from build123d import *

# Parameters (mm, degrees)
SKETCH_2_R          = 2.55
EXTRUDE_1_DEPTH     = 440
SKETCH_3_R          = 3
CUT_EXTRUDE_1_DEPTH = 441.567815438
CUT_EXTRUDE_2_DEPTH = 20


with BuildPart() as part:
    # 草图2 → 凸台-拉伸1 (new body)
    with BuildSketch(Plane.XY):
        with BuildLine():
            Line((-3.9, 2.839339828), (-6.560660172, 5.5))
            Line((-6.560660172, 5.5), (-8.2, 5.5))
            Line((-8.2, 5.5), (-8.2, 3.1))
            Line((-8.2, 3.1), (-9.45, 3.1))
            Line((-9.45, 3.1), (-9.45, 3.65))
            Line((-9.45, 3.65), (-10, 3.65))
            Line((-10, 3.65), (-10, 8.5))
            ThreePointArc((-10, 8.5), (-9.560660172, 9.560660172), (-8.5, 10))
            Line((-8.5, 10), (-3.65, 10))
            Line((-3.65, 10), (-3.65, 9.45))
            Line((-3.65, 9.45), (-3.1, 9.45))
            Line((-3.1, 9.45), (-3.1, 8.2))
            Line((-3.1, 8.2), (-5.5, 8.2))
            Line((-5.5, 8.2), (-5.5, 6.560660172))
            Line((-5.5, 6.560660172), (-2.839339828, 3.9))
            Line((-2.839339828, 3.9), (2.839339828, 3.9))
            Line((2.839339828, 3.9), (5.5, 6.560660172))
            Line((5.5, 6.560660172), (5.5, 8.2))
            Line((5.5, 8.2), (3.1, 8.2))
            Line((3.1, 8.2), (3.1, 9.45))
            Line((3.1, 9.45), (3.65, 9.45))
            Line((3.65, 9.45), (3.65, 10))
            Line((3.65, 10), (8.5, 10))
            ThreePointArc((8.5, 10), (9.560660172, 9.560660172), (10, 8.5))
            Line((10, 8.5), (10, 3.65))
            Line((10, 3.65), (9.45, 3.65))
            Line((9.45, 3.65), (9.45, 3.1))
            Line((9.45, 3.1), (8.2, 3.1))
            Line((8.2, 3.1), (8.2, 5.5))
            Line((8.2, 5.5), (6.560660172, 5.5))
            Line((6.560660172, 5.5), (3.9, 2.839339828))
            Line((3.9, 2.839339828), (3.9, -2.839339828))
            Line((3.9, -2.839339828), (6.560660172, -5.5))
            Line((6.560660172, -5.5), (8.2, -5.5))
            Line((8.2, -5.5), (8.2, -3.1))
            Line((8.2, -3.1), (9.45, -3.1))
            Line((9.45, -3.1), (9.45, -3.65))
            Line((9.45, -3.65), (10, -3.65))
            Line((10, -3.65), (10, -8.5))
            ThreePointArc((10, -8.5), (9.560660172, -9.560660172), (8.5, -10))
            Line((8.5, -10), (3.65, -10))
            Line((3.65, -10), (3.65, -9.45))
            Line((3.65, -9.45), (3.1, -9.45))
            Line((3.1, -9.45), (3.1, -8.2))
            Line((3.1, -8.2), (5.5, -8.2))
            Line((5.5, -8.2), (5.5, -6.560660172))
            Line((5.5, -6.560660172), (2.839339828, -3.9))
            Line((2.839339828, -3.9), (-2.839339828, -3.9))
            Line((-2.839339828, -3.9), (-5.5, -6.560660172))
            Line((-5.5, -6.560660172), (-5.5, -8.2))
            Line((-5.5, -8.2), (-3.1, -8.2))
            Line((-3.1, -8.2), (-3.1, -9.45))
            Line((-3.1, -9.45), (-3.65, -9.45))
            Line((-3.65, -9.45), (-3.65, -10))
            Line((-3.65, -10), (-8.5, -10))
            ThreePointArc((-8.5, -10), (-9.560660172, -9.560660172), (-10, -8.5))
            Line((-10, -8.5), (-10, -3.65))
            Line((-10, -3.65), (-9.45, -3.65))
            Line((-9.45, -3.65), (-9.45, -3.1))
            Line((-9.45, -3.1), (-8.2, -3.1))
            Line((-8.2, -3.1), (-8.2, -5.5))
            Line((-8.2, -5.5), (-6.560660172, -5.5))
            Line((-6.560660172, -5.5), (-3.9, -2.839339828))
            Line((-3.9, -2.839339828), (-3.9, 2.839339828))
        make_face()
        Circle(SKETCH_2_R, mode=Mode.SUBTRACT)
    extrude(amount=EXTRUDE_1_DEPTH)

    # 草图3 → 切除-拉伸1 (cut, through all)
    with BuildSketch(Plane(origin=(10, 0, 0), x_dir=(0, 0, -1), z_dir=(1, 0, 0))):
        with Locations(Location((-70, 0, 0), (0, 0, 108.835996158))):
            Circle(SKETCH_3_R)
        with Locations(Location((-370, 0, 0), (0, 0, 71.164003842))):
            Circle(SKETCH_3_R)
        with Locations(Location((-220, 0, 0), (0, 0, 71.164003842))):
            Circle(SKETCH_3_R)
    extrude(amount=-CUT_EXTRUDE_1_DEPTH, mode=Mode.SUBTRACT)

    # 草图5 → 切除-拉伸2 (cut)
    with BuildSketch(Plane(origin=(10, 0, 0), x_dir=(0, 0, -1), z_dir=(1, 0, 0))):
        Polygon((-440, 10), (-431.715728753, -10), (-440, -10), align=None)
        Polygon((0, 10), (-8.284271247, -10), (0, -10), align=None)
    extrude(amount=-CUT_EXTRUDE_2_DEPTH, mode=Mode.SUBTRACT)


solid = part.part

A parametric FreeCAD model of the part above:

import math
import FreeCAD as App
import Part
import Sketcher

V = App.Vector
Q = App.Units.Quantity


def add_polygon(sketch, points):
    """Adds a closed chain of lines whose ends are joined by coincident constraints."""
    first, n = sketch.GeometryCount, len(points)
    for a, b in zip(points, points[1:] + points[:1]):
        sketch.addGeometry(Part.LineSegment(App.Vector(*a, 0), App.Vector(*b, 0)), False)
    for i in range(n):
        sketch.addConstraint(Sketcher.Constraint("Coincident", first + i, 2, first + (i + 1) % n, 1))

doc = App.newDocument("Part")
params = doc.addObject("Spreadsheet::Sheet", "Params")
for row, (alias, value) in enumerate([
    ("sketch1_diameter", "5.1 mm"),
    ("sketch1_radius", "1.5 mm"),
    ("sketch1_width", "2.4 mm"),
    ("sketch1_width2", "1.25 mm"),
    ("sketch1_width3", "0.55 mm"),
    ("pad1_length", "440 mm"),
    ("sketch2_diameter", "6 mm"),
    ("sketch3_width", "20 mm"),
    ("pocket2_length", "20 mm"),
], start=1):
    params.set(f"A{row}", alias)
    params.set(f"B{row}", "=" + value)
    params.setAlias(f"B{row}", alias)

body = doc.addObject("PartDesign::Body", "Body")

sketch1 = body.newObject("Sketcher::SketchObject", "Sketch")
sketch1.AttachmentSupport = (doc.getObject("XY_Plane"), [""])
sketch1.MapMode = "FlatFace"
sketch1.addGeometry([
    Part.LineSegment(V(-6.6, 5.5, 0), V(-3.9, 2.8, 0)),
    Part.LineSegment(V(-3.9, 2.8, 0), V(-3.9, -2.8, 0)),
    Part.LineSegment(V(-3.9, -2.8, 0), V(-6.6, -5.5, 0)),
    Part.LineSegment(V(-6.6, -5.5, 0), V(-8.2, -5.5, 0)),
    Part.LineSegment(V(-8.2, -5.5, 0), V(-8.2, -3.1, 0)),
    Part.LineSegment(V(-8.2, -3.1, 0), V(-9.4, -3.1, 0)),
    Part.LineSegment(V(-9.4, -3.1, 0), V(-9.4, -3.6, 0)),
    Part.LineSegment(V(-9.4, -3.6, 0), V(-10, -3.6, 0)),
    Part.LineSegment(V(-10, -3.6, 0), V(-10, -8.5, 0)),
    Part.ArcOfCircle(Part.Circle(V(-8.5, -8.5, 0), V(0, 0, 1), 1.5), math.radians(180), math.radians(270)),
    Part.LineSegment(V(-8.5, -10, 0), V(-3.6, -10, 0)),
    Part.LineSegment(V(-3.6, -10, 0), V(-3.6, -9.4, 0)),
    Part.LineSegment(V(-3.6, -9.4, 0), V(-3.1, -9.4, 0)),
    Part.LineSegment(V(-3.1, -9.4, 0), V(-3.1, -8.2, 0)),
    Part.LineSegment(V(-3.1, -8.2, 0), V(-5.5, -8.2, 0)),
    Part.LineSegment(V(-5.5, -8.2, 0), V(-5.5, -6.6, 0)),
    Part.LineSegment(V(-5.5, -6.6, 0), V(-2.8, -3.9, 0)),
    Part.LineSegment(V(-2.8, -3.9, 0), V(2.8, -3.9, 0)),
    Part.LineSegment(V(2.8, -3.9, 0), V(5.5, -6.6, 0)),
    Part.LineSegment(V(5.5, -6.6, 0), V(5.5, -8.2, 0)),
    Part.LineSegment(V(5.5, -8.2, 0), V(3.1, -8.2, 0)),
    Part.LineSegment(V(3.1, -8.2, 0), V(3.1, -9.4, 0)),
    Part.LineSegment(V(3.1, -9.4, 0), V(3.6, -9.4, 0)),
    Part.LineSegment(V(3.6, -9.4, 0), V(3.6, -10, 0)),
    Part.LineSegment(V(3.6, -10, 0), V(8.5, -10, 0)),
    Part.ArcOfCircle(Part.Circle(V(8.5, -8.5, 0), V(0, 0, 1), 1.5), math.radians(-90), math.radians(0)),
    Part.LineSegment(V(10, -8.5, 0), V(10, -3.6, 0)),
    Part.LineSegment(V(10, -3.6, 0), V(9.4, -3.6, 0)),
    Part.LineSegment(V(9.4, -3.6, 0), V(9.4, -3.1, 0)),
    Part.LineSegment(V(9.4, -3.1, 0), V(8.2, -3.1, 0)),
    Part.LineSegment(V(8.2, -3.1, 0), V(8.2, -5.5, 0)),
    Part.LineSegment(V(8.2, -5.5, 0), V(6.6, -5.5, 0)),
    Part.LineSegment(V(6.6, -5.5, 0), V(3.9, -2.8, 0)),
    Part.LineSegment(V(3.9, -2.8, 0), V(3.9, 2.8, 0)),
    Part.LineSegment(V(3.9, 2.8, 0), V(6.6, 5.5, 0)),
    Part.LineSegment(V(6.6, 5.5, 0), V(8.2, 5.5, 0)),
    Part.LineSegment(V(8.2, 5.5, 0), V(8.2, 3.1, 0)),
    Part.LineSegment(V(8.2, 3.1, 0), V(9.4, 3.1, 0)),
    Part.LineSegment(V(9.4, 3.1, 0), V(9.4, 3.6, 0)),
    Part.LineSegment(V(9.4, 3.6, 0), V(10, 3.6, 0)),
    Part.LineSegment(V(10, 3.6, 0), V(10, 8.5, 0)),
    Part.ArcOfCircle(Part.Circle(V(8.5, 8.5, 0), V(0, 0, 1), 1.5), math.radians(0), math.radians(90)),
    Part.LineSegment(V(8.5, 10, 0), V(3.6, 10, 0)),
    Part.LineSegment(V(3.6, 10, 0), V(3.6, 9.4, 0)),
    Part.LineSegment(V(3.6, 9.4, 0), V(3.1, 9.4, 0)),
    Part.LineSegment(V(3.1, 9.4, 0), V(3.1, 8.2, 0)),
    Part.LineSegment(V(3.1, 8.2, 0), V(5.5, 8.2, 0)),
    Part.LineSegment(V(5.5, 8.2, 0), V(5.5, 6.6, 0)),
    Part.LineSegment(V(5.5, 6.6, 0), V(2.8, 3.9, 0)),
    Part.LineSegment(V(2.8, 3.9, 0), V(-2.8, 3.9, 0)),
    Part.LineSegment(V(-2.8, 3.9, 0), V(-5.5, 6.6, 0)),
    Part.LineSegment(V(-5.5, 6.6, 0), V(-5.5, 8.2, 0)),
    Part.LineSegment(V(-5.5, 8.2, 0), V(-3.1, 8.2, 0)),
    Part.LineSegment(V(-3.1, 8.2, 0), V(-3.1, 9.4, 0)),
    Part.LineSegment(V(-3.1, 9.4, 0), V(-3.6, 9.4, 0)),
    Part.LineSegment(V(-3.6, 9.4, 0), V(-3.6, 10, 0)),
    Part.LineSegment(V(-3.6, 10, 0), V(-8.5, 10, 0)),
    Part.ArcOfCircle(Part.Circle(V(-8.5, 8.5, 0), V(0, 0, 1), 1.5), math.radians(90), math.radians(180)),
    Part.LineSegment(V(-10, 8.5, 0), V(-10, 3.6, 0)),
    Part.LineSegment(V(-10, 3.6, 0), V(-9.4, 3.6, 0)),
    Part.LineSegment(V(-9.4, 3.6, 0), V(-9.4, 3.1, 0)),
    Part.LineSegment(V(-9.4, 3.1, 0), V(-8.2, 3.1, 0)),
    Part.LineSegment(V(-8.2, 3.1, 0), V(-8.2, 5.5, 0)),
    Part.LineSegment(V(-8.2, 5.5, 0), V(-6.6, 5.5, 0)),
    Part.Circle(V(0, 0, 0), V(0, 0, 1), 2.5),
], False)
sketch1.addConstraint([
    Sketcher.Constraint("Coincident", 0, 2, 1, 1),
    Sketcher.Constraint("Coincident", 1, 2, 2, 1),
    Sketcher.Constraint("Coincident", 2, 2, 3, 1),
    Sketcher.Constraint("Coincident", 3, 2, 4, 1),
    Sketcher.Constraint("Coincident", 4, 2, 5, 1),
    Sketcher.Constraint("Coincident", 5, 2, 6, 1),
    Sketcher.Constraint("Coincident", 6, 2, 7, 1),
    Sketcher.Constraint("Coincident", 7, 2, 8, 1),
    Sketcher.Constraint("Tangent", 8, 2, 9, 1),
    Sketcher.Constraint("Tangent", 9, 2, 10, 1),
    Sketcher.Constraint("Coincident", 10, 2, 11, 1),
    Sketcher.Constraint("Coincident", 11, 2, 12, 1),
    Sketcher.Constraint("Coincident", 12, 2, 13, 1),
    Sketcher.Constraint("Coincident", 13, 2, 14, 1),
    Sketcher.Constraint("Coincident", 14, 2, 15, 1),
    Sketcher.Constraint("Coincident", 15, 2, 16, 1),
    Sketcher.Constraint("Coincident", 16, 2, 17, 1),
    Sketcher.Constraint("Coincident", 17, 2, 18, 1),
    Sketcher.Constraint("Coincident", 18, 2, 19, 1),
    Sketcher.Constraint("Coincident", 19, 2, 20, 1),
    Sketcher.Constraint("Coincident", 20, 2, 21, 1),
    Sketcher.Constraint("Coincident", 21, 2, 22, 1),
    Sketcher.Constraint("Coincident", 22, 2, 23, 1),
    Sketcher.Constraint("Coincident", 23, 2, 24, 1),
    Sketcher.Constraint("Tangent", 24, 2, 25, 1),
    Sketcher.Constraint("Tangent", 25, 2, 26, 1),
    Sketcher.Constraint("Coincident", 26, 2, 27, 1),
    Sketcher.Constraint("Coincident", 27, 2, 28, 1),
    Sketcher.Constraint("Coincident", 28, 2, 29, 1),
    Sketcher.Constraint("Coincident", 29, 2, 30, 1),
    Sketcher.Constraint("Coincident", 30, 2, 31, 1),
    Sketcher.Constraint("Coincident", 31, 2, 32, 1),
    Sketcher.Constraint("Coincident", 32, 2, 33, 1),
    Sketcher.Constraint("Coincident", 33, 2, 34, 1),
    Sketcher.Constraint("Coincident", 34, 2, 35, 1),
    Sketcher.Constraint("Coincident", 35, 2, 36, 1),
    Sketcher.Constraint("Coincident", 36, 2, 37, 1),
    Sketcher.Constraint("Coincident", 37, 2, 38, 1),
    Sketcher.Constraint("Coincident", 38, 2, 39, 1),
    Sketcher.Constraint("Coincident", 39, 2, 40, 1),
    Sketcher.Constraint("Tangent", 40, 2, 41, 1),
    Sketcher.Constraint("Tangent", 41, 2, 42, 1),
    Sketcher.Constraint("Coincident", 42, 2, 43, 1),
    Sketcher.Constraint("Coincident", 43, 2, 44, 1),
    Sketcher.Constraint("Coincident", 44, 2, 45, 1),
    Sketcher.Constraint("Coincident", 45, 2, 46, 1),
    Sketcher.Constraint("Coincident", 46, 2, 47, 1),
    Sketcher.Constraint("Coincident", 47, 2, 48, 1),
    Sketcher.Constraint("Coincident", 48, 2, 49, 1),
    Sketcher.Constraint("Coincident", 49, 2, 50, 1),
    Sketcher.Constraint("Coincident", 50, 2, 51, 1),
    Sketcher.Constraint("Coincident", 51, 2, 52, 1),
    Sketcher.Constraint("Coincident", 52, 2, 53, 1),
    Sketcher.Constraint("Coincident", 53, 2, 54, 1),
    Sketcher.Constraint("Coincident", 54, 2, 55, 1),
    Sketcher.Constraint("Coincident", 55, 2, 56, 1),
    Sketcher.Constraint("Tangent", 56, 2, 57, 1),
    Sketcher.Constraint("Tangent", 57, 2, 58, 1),
    Sketcher.Constraint("Coincident", 58, 2, 59, 1),
    Sketcher.Constraint("Coincident", 59, 2, 60, 1),
    Sketcher.Constraint("Coincident", 60, 2, 61, 1),
    Sketcher.Constraint("Coincident", 61, 2, 62, 1),
    Sketcher.Constraint("Coincident", 62, 2, 63, 1),
    Sketcher.Constraint("Coincident", 63, 2, 0, 1),
    Sketcher.Constraint("Vertical", 1),
    Sketcher.Constraint("Horizontal", 3),
    Sketcher.Constraint("Vertical", 4),
    Sketcher.Constraint("Horizontal", 5),
    Sketcher.Constraint("Vertical", 6),
    Sketcher.Constraint("Horizontal", 7),
    Sketcher.Constraint("Vertical", 8),
    Sketcher.Constraint("Horizontal", 10),
    Sketcher.Constraint("Vertical", 11),
    Sketcher.Constraint("Horizontal", 12),
    Sketcher.Constraint("Vertical", 13),
    Sketcher.Constraint("Horizontal", 14),
    Sketcher.Constraint("Vertical", 15),
    Sketcher.Constraint("Horizontal", 17),
    Sketcher.Constraint("Vertical", 19),
    Sketcher.Constraint("Horizontal", 20),
    Sketcher.Constraint("Vertical", 21),
    Sketcher.Constraint("Horizontal", 22),
    Sketcher.Constraint("Vertical", 23),
    Sketcher.Constraint("Horizontal", 24),
    Sketcher.Constraint("Vertical", 26),
    Sketcher.Constraint("Horizontal", 27),
    Sketcher.Constraint("Vertical", 28),
    Sketcher.Constraint("Horizontal", 29),
    Sketcher.Constraint("Vertical", 30),
    Sketcher.Constraint("Horizontal", 31),
    Sketcher.Constraint("Vertical", 33),
    Sketcher.Constraint("Horizontal", 35),
    Sketcher.Constraint("Vertical", 36),
    Sketcher.Constraint("Horizontal", 37),
    Sketcher.Constraint("Vertical", 38),
    Sketcher.Constraint("Horizontal", 39),
    Sketcher.Constraint("Vertical", 40),
    Sketcher.Constraint("Horizontal", 42),
    Sketcher.Constraint("Vertical", 43),
    Sketcher.Constraint("Horizontal", 44),
    Sketcher.Constraint("Vertical", 45),
    Sketcher.Constraint("Horizontal", 46),
    Sketcher.Constraint("Vertical", 47),
    Sketcher.Constraint("Horizontal", 49),
    Sketcher.Constraint("Vertical", 51),
    Sketcher.Constraint("Horizontal", 52),
    Sketcher.Constraint("Vertical", 53),
    Sketcher.Constraint("Horizontal", 54),
    Sketcher.Constraint("Vertical", 55),
    Sketcher.Constraint("Horizontal", 56),
    Sketcher.Constraint("Vertical", 58),
    Sketcher.Constraint("Horizontal", 59),
    Sketcher.Constraint("Vertical", 60),
    Sketcher.Constraint("Horizontal", 61),
    Sketcher.Constraint("Vertical", 62),
    Sketcher.Constraint("Horizontal", 63),
    Sketcher.Constraint("Coincident", 64, 3, -1, 1),
    Sketcher.Constraint("Equal", 9, 25),
    Sketcher.Constraint("Equal", 25, 41),
    Sketcher.Constraint("Equal", 41, 57),
    Sketcher.Constraint("Symmetric", 9, 3, 41, 3, -1, 1),
    Sketcher.Constraint("Symmetric", 25, 3, 57, 3, -1, 1),
    Sketcher.Constraint("Symmetric", 0, 2, 32, 2, -1, 1),
    Sketcher.Constraint("Symmetric", 2, 2, 34, 2, -1, 1),
    Sketcher.Constraint("Symmetric", 4, 2, 36, 2, -1, 1),
    Sketcher.Constraint("Symmetric", 6, 2, 38, 2, -1, 1),
    Sketcher.Constraint("Symmetric", 11, 2, 43, 2, -1, 1),
    Sketcher.Constraint("Symmetric", 13, 2, 45, 2, -1, 1),
    Sketcher.Constraint("Symmetric", 15, 2, 47, 2, -1, 1),
    Sketcher.Constraint("Symmetric", 16, 2, 48, 2, -1, 1),
    Sketcher.Constraint("Symmetric", 18, 2, 50, 2, -1, 1),
    Sketcher.Constraint("Symmetric", 20, 2, 52, 2, -1, 1),
    Sketcher.Constraint("Symmetric", 22, 2, 54, 2, -1, 1),
    Sketcher.Constraint("Symmetric", 27, 2, 59, 2, -1, 1),
    Sketcher.Constraint("Symmetric", 29, 2, 61, 2, -1, 1),
    Sketcher.Constraint("Symmetric", 31, 2, 63, 2, -1, 1),
    Sketcher.Constraint("Symmetric", 9, 3, 25, 3, -2),
    Sketcher.Constraint("Symmetric", 15, 2, 18, 2, -2),
    Sketcher.Constraint("Symmetric", 13, 2, 20, 2, -2),
    Sketcher.Constraint("Symmetric", 11, 2, 22, 2, -2),
    Sketcher.Constraint("Symmetric", 6, 2, 27, 2, -2),
    Sketcher.Constraint("Symmetric", 4, 2, 29, 2, -2),
    Sketcher.Constraint("Symmetric", 2, 2, 31, 2, -2),
    Sketcher.Constraint("Perpendicular", 0, 2),
    Sketcher.Constraint("Parallel", 2, 16),
    Sketcher.Constraint("Perpendicular", 16, 18),
    Sketcher.Constraint("Perpendicular", 32, 34),
    Sketcher.Constraint("Perpendicular", 48, 50),
    Sketcher.Constraint("Horizontal", 1, 2, 32, 2),
    Sketcher.Constraint("Equal", 7, 12),
    Sketcher.Constraint("Equal", 49, 1),
    Sketcher.Constraint("Equal", 52, 4),
    Sketcher.Constraint("Equal", 59, 6),
    Sketcher.Constraint("Equal", 56, 8),
    Sketcher.Constraint("Equal", 6, 11),
    Sketcher.Constraint("Equal", 61, 13),
    Sketcher.Constraint("Equal", 63, 15),
    Sketcher.Constraint("Equal", 2, 16),
    Sketcher.Constraint("Diameter", 64, 5.1),
    Sketcher.Constraint("Radius", 9, 1.5),
    Sketcher.Constraint("DistanceX", 14, 2, 14, 1, 2.4),
    Sketcher.Constraint("DistanceX", 7, 2, -1, 1, 10.0),
    Sketcher.Constraint("DistanceX", 5, 2, 5, 1, 1.25),
    Sketcher.Constraint("DistanceX", 7, 2, 7, 1, 0.55),
    Sketcher.Constraint("DistanceX", 10, 1, 10, 2, 4.85),
    Sketcher.Constraint("DistanceX", 0, 2, -1, 1, 3.9),
    Sketcher.Constraint("DistanceX", 3, 2, 3, 1, 1.63934),
])
sketch1.setExpression("Constraints[158]", "Params.sketch1_diameter")
sketch1.setExpression("Constraints[159]", "Params.sketch1_radius")
sketch1.setExpression("Constraints[160]", "Params.sketch1_width")
sketch1.setExpression("Constraints[162]", "Params.sketch1_width2")
sketch1.setExpression("Constraints[163]", "Params.sketch1_width3")
pad1 = body.newObject("PartDesign::Pad", "Pad")
pad1.Profile = sketch1
pad1.setExpression("Length", "Params.pad1_length")

sketch2 = body.newObject("Sketcher::SketchObject", "Sketch001")
sketch2.AttachmentSupport = (doc.getObject("YZ_Plane"), [""])
sketch2.MapMode = "FlatFace"
sketch2.AttachmentOffset = App.Placement(V(0, 0, 10), App.Rotation())
sketch2.addGeometry([
    Part.Circle(V(0, 70, 0), V(0, 0, 1), 3),
    Part.Circle(V(0, 370, 0), V(0, 0, 1), 3),
    Part.Circle(V(0, 220, 0), V(0, 0, 1), 3),
], False)
sketch2.addConstraint([
    Sketcher.Constraint("Equal", 0, 1),
    Sketcher.Constraint("Equal", 1, 2),
    Sketcher.Constraint("PointOnObject", 0, 3, -2),
    Sketcher.Constraint("PointOnObject", 1, 3, -2),
    Sketcher.Constraint("PointOnObject", 2, 3, -2),
    Sketcher.Constraint("Diameter", 0, 6.0),
    Sketcher.Constraint("DistanceY", -1, 1, 0, 3, 70.0),
    Sketcher.Constraint("DistanceY", -1, 1, 1, 3, 370.0),
    Sketcher.Constraint("DistanceY", -1, 1, 2, 3, 220.0),
])
sketch2.setExpression("Constraints[5]", "Params.sketch2_diameter")
pocket1 = body.newObject("PartDesign::Pocket", "Pocket")
pocket1.Profile = sketch2
pocket1.Type = "ThroughAll"

sketch3 = body.newObject("Sketcher::SketchObject", "Sketch002")
sketch3.AttachmentSupport = (doc.getObject("YZ_Plane"), [""])
sketch3.MapMode = "FlatFace"
sketch3.AttachmentOffset = App.Placement(V(0, 0, 10), App.Rotation())
add_polygon(sketch3, [(-10, 432), (10, 440), (-10, 440)])
add_polygon(sketch3, [(10, 0), (-10, 8), (-10, 0)])
sketch3.addConstraint([
    Sketcher.Constraint("Horizontal", 1),
    Sketcher.Constraint("Vertical", 2),
    Sketcher.Constraint("Vertical", 4),
    Sketcher.Constraint("Horizontal", 5),
    Sketcher.Constraint("Symmetric", 4, 2, 5, 2, -1, 1),
    Sketcher.Constraint("Vertical", 2, 2, 3, 2),
    Sketcher.Constraint("Vertical", 0, 2, 5, 2),
    Sketcher.Constraint("Equal", 2, 4),
    Sketcher.Constraint("DistanceX", 1, 2, 1, 1, 20.0),
    Sketcher.Constraint("DistanceY", -1, 1, 0, 2, 440.0),
    Sketcher.Constraint("Angle", 0, Q("22.5 deg")),
])
sketch3.setExpression("Constraints[14]", "Params.sketch3_width")
pocket2 = body.newObject("PartDesign::Pocket", "Pocket001")
pocket2.Profile = sketch3
pocket2.setExpression("Length", "Params.pocket2_length")

doc.recompute()
